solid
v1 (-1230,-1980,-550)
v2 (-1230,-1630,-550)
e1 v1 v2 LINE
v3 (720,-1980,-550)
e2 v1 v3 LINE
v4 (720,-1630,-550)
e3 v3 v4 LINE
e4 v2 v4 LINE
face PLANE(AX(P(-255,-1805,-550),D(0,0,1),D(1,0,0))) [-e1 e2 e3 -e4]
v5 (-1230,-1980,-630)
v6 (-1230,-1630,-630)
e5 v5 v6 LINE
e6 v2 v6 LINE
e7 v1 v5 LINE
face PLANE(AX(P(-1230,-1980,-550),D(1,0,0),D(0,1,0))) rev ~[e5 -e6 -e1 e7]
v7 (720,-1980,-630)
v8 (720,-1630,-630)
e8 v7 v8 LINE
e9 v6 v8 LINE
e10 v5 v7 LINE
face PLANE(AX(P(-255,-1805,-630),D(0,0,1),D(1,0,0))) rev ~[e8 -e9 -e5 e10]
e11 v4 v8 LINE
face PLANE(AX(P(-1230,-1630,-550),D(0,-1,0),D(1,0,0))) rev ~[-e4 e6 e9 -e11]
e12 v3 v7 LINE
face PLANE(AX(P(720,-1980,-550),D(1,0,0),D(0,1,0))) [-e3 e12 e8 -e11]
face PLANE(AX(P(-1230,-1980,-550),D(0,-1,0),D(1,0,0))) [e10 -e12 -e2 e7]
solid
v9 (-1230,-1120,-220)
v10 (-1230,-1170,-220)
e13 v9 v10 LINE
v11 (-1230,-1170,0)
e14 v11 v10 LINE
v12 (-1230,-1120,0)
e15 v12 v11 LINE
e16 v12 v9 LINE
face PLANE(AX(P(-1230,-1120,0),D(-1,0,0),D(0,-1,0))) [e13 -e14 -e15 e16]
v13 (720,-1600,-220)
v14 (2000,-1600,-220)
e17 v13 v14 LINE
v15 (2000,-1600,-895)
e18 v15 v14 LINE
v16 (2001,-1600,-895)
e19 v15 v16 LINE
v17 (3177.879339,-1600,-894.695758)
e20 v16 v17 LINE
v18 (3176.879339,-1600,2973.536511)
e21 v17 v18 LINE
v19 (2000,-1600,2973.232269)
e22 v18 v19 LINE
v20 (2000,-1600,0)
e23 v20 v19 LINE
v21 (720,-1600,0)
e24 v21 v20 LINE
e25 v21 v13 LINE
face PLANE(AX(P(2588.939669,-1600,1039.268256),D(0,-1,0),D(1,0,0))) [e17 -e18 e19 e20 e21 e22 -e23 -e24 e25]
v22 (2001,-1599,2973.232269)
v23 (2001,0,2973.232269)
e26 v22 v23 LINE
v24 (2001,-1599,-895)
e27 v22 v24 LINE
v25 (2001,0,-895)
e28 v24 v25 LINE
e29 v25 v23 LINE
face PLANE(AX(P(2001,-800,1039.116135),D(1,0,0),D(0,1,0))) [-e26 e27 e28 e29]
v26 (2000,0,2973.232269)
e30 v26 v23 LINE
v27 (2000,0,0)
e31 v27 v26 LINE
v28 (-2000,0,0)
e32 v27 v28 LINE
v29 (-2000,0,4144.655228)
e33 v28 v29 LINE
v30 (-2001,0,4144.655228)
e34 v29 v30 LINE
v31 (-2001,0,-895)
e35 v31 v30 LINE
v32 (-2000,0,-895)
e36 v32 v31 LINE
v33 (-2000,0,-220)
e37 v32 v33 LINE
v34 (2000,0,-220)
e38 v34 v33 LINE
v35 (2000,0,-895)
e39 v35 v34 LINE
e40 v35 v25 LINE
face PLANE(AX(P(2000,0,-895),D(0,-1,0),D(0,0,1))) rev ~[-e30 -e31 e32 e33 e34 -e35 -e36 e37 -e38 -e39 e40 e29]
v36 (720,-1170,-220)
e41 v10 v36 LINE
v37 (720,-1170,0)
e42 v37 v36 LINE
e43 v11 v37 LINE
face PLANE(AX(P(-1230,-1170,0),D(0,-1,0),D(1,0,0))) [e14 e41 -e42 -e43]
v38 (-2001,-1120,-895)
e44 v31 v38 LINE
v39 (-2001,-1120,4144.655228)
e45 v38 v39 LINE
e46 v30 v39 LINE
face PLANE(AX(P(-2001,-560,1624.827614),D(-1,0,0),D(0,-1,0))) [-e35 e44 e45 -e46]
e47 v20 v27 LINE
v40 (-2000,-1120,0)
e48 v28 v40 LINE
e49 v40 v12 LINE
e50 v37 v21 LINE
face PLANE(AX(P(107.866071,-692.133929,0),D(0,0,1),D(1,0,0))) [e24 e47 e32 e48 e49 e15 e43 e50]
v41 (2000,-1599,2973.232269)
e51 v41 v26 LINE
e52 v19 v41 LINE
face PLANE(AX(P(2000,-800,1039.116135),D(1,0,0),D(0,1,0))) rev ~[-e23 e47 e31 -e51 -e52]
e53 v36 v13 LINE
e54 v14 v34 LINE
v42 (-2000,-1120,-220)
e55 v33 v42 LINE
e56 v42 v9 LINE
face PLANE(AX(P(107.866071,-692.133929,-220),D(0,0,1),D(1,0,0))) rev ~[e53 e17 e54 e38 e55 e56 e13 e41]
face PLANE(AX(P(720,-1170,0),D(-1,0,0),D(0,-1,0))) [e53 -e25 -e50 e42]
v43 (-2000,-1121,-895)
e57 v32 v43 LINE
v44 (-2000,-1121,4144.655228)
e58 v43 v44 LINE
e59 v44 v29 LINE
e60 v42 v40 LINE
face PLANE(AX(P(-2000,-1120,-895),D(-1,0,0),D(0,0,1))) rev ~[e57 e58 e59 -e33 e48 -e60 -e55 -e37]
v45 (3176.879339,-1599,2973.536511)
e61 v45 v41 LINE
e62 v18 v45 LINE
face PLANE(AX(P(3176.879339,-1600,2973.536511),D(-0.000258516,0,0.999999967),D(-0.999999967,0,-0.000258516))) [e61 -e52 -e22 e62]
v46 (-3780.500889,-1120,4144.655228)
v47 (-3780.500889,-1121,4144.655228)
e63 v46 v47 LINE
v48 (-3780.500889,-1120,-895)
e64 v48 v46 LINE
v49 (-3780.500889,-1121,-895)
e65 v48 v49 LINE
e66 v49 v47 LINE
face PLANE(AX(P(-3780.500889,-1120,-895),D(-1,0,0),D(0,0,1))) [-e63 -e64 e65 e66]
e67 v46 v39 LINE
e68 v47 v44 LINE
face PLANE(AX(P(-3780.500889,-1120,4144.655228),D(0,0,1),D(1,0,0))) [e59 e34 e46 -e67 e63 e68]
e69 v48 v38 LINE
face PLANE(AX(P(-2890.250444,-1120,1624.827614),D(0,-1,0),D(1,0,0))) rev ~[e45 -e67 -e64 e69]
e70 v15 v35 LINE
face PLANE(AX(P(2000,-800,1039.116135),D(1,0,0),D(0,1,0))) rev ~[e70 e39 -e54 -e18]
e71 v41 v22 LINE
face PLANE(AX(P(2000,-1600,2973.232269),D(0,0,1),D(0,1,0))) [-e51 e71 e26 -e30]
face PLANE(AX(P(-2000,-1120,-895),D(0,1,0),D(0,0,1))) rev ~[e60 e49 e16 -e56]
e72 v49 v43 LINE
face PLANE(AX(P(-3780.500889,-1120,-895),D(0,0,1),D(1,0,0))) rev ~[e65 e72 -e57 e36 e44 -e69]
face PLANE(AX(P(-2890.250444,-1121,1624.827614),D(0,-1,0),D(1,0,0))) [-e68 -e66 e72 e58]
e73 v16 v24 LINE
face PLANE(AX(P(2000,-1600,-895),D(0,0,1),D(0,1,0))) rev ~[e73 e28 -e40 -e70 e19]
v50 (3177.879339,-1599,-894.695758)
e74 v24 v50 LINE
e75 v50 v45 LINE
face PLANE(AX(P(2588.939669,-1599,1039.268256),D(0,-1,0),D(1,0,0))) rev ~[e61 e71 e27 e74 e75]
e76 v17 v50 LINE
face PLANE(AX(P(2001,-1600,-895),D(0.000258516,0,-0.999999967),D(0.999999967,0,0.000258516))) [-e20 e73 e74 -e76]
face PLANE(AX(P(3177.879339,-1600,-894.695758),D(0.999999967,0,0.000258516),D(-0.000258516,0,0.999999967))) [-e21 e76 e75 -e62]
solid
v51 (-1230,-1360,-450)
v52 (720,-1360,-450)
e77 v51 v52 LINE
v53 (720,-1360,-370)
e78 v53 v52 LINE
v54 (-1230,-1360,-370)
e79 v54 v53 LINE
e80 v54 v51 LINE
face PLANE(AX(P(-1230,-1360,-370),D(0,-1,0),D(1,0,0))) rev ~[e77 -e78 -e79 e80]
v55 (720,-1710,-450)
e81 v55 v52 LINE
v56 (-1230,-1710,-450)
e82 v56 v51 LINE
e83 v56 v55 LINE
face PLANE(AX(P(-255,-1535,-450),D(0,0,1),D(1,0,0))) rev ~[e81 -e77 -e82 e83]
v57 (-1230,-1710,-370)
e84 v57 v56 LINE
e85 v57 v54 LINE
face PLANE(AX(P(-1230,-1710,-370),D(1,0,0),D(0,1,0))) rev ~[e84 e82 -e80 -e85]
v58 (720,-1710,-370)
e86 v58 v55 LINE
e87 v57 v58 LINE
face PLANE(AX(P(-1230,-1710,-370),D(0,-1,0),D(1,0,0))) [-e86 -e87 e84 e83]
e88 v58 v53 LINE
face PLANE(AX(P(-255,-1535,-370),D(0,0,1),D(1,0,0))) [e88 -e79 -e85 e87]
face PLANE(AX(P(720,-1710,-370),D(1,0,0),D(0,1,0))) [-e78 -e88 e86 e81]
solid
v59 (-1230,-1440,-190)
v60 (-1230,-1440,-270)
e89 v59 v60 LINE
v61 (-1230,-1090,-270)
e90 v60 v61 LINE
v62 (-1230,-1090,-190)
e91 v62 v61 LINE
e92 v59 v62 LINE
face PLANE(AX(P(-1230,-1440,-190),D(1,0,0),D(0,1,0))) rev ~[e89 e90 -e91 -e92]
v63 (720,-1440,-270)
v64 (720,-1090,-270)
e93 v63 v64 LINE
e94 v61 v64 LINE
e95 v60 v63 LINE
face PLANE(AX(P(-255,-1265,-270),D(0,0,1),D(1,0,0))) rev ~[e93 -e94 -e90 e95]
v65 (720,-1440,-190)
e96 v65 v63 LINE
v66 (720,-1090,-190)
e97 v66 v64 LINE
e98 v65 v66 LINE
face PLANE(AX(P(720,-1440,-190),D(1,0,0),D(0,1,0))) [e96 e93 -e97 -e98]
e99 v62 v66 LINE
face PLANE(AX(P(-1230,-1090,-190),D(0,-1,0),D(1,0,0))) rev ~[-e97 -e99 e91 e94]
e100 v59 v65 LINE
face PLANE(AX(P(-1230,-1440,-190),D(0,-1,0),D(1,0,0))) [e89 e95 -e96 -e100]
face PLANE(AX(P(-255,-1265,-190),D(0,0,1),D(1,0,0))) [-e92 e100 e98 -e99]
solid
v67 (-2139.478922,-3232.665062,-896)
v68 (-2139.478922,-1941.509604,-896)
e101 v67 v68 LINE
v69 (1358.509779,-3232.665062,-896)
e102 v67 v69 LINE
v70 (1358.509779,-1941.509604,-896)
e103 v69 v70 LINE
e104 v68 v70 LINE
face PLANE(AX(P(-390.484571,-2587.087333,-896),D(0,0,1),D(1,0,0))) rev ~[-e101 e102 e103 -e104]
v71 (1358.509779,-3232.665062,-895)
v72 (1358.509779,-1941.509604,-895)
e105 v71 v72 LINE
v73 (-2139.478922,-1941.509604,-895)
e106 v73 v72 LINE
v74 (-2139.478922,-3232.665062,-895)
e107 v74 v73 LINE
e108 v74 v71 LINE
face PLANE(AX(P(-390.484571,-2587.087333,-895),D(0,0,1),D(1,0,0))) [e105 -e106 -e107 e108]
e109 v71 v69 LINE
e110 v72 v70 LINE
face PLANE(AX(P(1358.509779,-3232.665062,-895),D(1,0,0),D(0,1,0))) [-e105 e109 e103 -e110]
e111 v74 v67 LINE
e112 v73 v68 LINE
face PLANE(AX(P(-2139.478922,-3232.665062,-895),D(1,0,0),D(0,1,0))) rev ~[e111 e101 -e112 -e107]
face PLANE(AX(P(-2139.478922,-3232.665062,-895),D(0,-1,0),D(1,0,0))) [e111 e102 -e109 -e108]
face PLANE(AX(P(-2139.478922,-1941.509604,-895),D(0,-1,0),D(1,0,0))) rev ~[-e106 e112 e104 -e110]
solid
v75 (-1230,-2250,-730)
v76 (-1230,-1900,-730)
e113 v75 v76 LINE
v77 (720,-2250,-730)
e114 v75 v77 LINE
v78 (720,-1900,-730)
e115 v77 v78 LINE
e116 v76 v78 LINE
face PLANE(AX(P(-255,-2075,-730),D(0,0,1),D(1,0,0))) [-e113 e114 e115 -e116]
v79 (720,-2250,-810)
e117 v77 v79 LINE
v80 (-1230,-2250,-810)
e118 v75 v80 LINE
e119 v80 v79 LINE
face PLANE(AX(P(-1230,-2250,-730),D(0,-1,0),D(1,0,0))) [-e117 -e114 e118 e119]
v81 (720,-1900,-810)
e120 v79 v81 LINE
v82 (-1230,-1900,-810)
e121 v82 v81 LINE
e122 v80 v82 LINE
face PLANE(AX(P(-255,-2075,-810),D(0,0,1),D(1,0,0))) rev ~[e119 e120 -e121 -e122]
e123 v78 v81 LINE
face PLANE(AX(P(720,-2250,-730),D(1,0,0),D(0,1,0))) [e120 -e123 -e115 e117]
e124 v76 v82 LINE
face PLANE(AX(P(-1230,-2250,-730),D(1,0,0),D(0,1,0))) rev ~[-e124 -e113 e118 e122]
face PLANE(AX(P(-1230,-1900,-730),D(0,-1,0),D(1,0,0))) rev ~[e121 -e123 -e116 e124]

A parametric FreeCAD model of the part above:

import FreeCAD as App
import Part
import Sketcher
from FreeCAD import Vector


def add_polygon(sketch, points):
    """Adds a closed chain of lines whose ends are joined by coincident constraints."""
    first, n = sketch.GeometryCount, len(points)
    for a, b in zip(points, points[1:] + points[:1]):
        sketch.addGeometry(Part.LineSegment(App.Vector(*a, 0), App.Vector(*b, 0)), False)
    for i in range(n):
        sketch.addConstraint(Sketcher.Constraint("Coincident", first + i, 2, first + (i + 1) % n, 1))

doc = App.newDocument("Part")
body = doc.addObject("PartDesign::Body", "Body")

# Sketch on XY plane
sketch1 = body.newObject("Sketcher::SketchObject", "Sketch")
sketch1.AttachmentSupport = (doc.getObject("XY_Plane"), [""])
sketch1.MapMode = "FlatFace"
add_polygon(sketch1, [(2000, 0), (-2000, 0), (-2000, -1120), (-1230, -1120), (-1230, -1170), (720, -1170), (720, -1600), (2000, -1600)])  # lines 0-7
sketch1.addConstraint([
    Sketcher.Constraint("Horizontal", 0),
    Sketcher.Constraint("Vertical", 1),
    Sketcher.Constraint("Horizontal", 2),
    Sketcher.Constraint("Vertical", 3),
    Sketcher.Constraint("Horizontal", 4),
    Sketcher.Constraint("Vertical", 5),
    Sketcher.Constraint("Horizontal", 6),
    Sketcher.Constraint("Vertical", 7),
    Sketcher.Constraint("Symmetric", 0, 2, 7, 2, -1, 1),
    Sketcher.Constraint("DistanceX", 0, 2, 0, 1, 4000.0),
    Sketcher.Constraint("DistanceX", 2, 1, 2, 2, 770.0),
    Sketcher.Constraint("DistanceX", 4, 1, 4, 2, 1950.0),
    Sketcher.Constraint("DistanceY", 1, 2, 1, 1, 1120.0),
    Sketcher.Constraint("DistanceY", 3, 2, 3, 1, 50.0),
    Sketcher.Constraint("DistanceY", 5, 2, 5, 1, 430.0),
])
pad1 = body.newObject("PartDesign::Pad", "Pad")
pad1.Profile = sketch1
pad1.Length = 220
pad1.Reversed = True

# Sketch on YZ plane
sketch2 = body.newObject("Sketcher::SketchObject", "Sketch001")
sketch2.AttachmentSupport = (doc.getObject("YZ_Plane"), [""])
sketch2.MapMode = "FlatFace"
sketch2.AttachmentOffset = App.Placement(Vector(0, 0, -2000), App.Rotation())
add_polygon(sketch2, [(0, 4144.655228), (0, -895), (-1120, -895), (-1120, 4144.655228)])  # lines 0-3
sketch2.addConstraint([
    Sketcher.Constraint("Vertical", 0),
    Sketcher.Constraint("Horizontal", 1),
    Sketcher.Constraint("Vertical", 2),
    Sketcher.Constraint("Horizontal", 3),
    Sketcher.Constraint("PointOnObject", 0, 2, -2),
    Sketcher.Constraint("DistanceX", 1, 2, 1, 1, 1120.0),
    Sketcher.Constraint("DistanceY", 0, 2, -1, 1, 895.0),
    Sketcher.Constraint("DistanceY", 0, 2, 0, 1, 5039.655228),
])
pad2 = body.newObject("PartDesign::Pad", "Pad001")
pad2.Profile = sketch2
pad2.Length = 1
pad2.Reversed = True

# Sketch on XZ plane
sketch3 = body.newObject("Sketcher::SketchObject", "Sketch002")
sketch3.AttachmentSupport = (doc.getObject("XZ_Plane"), [""])
sketch3.MapMode = "FlatFace"
sketch3.AttachmentOffset = App.Placement(Vector(0, 0, 1120), App.Rotation())
add_polygon(sketch3, [(-3780.500889, 4144.655228), (-3780.500889, -895), (-2000, -895), (-2000, 4144.655228)])  # lines 0-3
sketch3.addConstraint([
    Sketcher.Constraint("Vertical", 0),
    Sketcher.Constraint("Horizontal", 1),
    Sketcher.Constraint("Vertical", 2),
    Sketcher.Constraint("Horizontal", 3),
    Sketcher.Constraint("DistanceY", 0, 2, -1, 1, 895.0),
    Sketcher.Constraint("DistanceX", 1, 2, -1, 1, 2000.0),
    Sketcher.Constraint("DistanceX", 1, 1, 1, 2, 1780.500889),
    Sketcher.Constraint("DistanceY", 0, 2, 0, 1, 5039.655228),
])
pad3 = body.newObject("PartDesign::Pad", "Pad002")
pad3.Profile = sketch3
pad3.Length = 1

# Sketch on YZ plane
sketch4 = body.newObject("Sketcher::SketchObject", "Sketch003")
sketch4.AttachmentSupport = (doc.getObject("YZ_Plane"), [""])
sketch4.MapMode = "FlatFace"
sketch4.AttachmentOffset = App.Placement(Vector(0, 0, 2000), App.Rotation())
add_polygon(sketch4, [(-1600, 2973.232269), (-1600, -895), (0, -895), (0, 2973.232269)])  # lines 0-3
sketch4.addConstraint([
    Sketcher.Constraint("Vertical", 0),
    Sketcher.Constraint("Horizontal", 1),
    Sketcher.Constraint("Vertical", 2),
    Sketcher.Constraint("Horizontal", 3),
    Sketcher.Constraint("PointOnObject", 1, 2, -2),
    Sketcher.Constraint("DistanceX", 1, 1, 1, 2, 1600.0),
    Sketcher.Constraint("DistanceY", 0, 2, -1, 1, 895.0),
    Sketcher.Constraint("DistanceY", 0, 2, 0, 1, 3868.232269),
])
pad4 = body.newObject("PartDesign::Pad", "Pad003")
pad4.Profile = sketch4
pad4.Length = 1

# Sketch on XZ plane
sketch5 = body.newObject("Sketcher::SketchObject", "Sketch004")
sketch5.AttachmentSupport = (doc.getObject("XZ_Plane"), [""])
sketch5.MapMode = "FlatFace"
sketch5.AttachmentOffset = App.Placement(Vector(0, 0, 1600), App.Rotation())
add_polygon(sketch5, [(3176.879339, 2973.536511), (2000, 2973.232269), (2001, -895), (3177.879339, -894.695758)])  # lines 0-3
sketch5.addConstraint([
    Sketcher.Constraint("Perpendicular", 0, 1),
    Sketcher.Constraint("Perpendicular", 1, 2),
    Sketcher.Constraint("Perpendicular", 2, 3),
    Sketcher.Constraint("DistanceX", -1, 1, 0, 2, 2000.0),
    Sketcher.Constraint("DistanceX", -1, 1, 1, 2, 2001.0),
    Sketcher.Constraint("DistanceY", 1, 2, -1, 1, 895.0),
    Sketcher.Constraint("Distance", 1, 3868.232399),
    Sketcher.Constraint("Distance", 0, 1176.879378),
])
pad5 = body.newObject("PartDesign::Pad", "Pad004")
pad5.Profile = sketch5
pad5.Length = 1
pad5.Reversed = True
body2 = doc.addObject("PartDesign::Body", "Body001")

# Sketch on XY plane
sketch6 = body2.newObject("Sketcher::SketchObject", "Sketch005")
sketch6.AttachmentSupport = (doc.getObject("XY_Plane001"), [""])
sketch6.MapMode = "FlatFace"
sketch6.AttachmentOffset = App.Placement(Vector(0, 0, -190), App.Rotation())
add_polygon(sketch6, [(-1230, -1090), (-1230, -1440), (720, -1440), (720, -1090)])  # lines 0-3
sketch6.addConstraint([
    Sketcher.Constraint("Vertical", 0),
    Sketcher.Constraint("Horizontal", 1),
    Sketcher.Constraint("Vertical", 2),
    Sketcher.Constraint("Horizontal", 3),
    Sketcher.Constraint("DistanceX", 1, 1, 1, 2, 1950.0),
    Sketcher.Constraint("DistanceY", 0, 2, 0, 1, 350.0),
    Sketcher.Constraint("DistanceX", 0, 2, -1, 1, 1230.0),
    Sketcher.Constraint("DistanceY", 0, 2, -1, 1, 1440.0),
])
pad6 = body2.newObject("PartDesign::Pad", "Pad005")
pad6.Profile = sketch6
pad6.Length = 80
pad6.Reversed = True
body3 = doc.addObject("PartDesign::Body", "Body002")

# Sketch on XY plane
sketch7 = body3.newObject("Sketcher::SketchObject", "Sketch006")
sketch7.AttachmentSupport = (doc.getObject("XY_Plane002"), [""])
sketch7.MapMode = "FlatFace"
sketch7.AttachmentOffset = App.Placement(Vector(0, 0, -370), App.Rotation())
add_polygon(sketch7, [(-1230, -1360), (-1230, -1710), (720, -1710), (720, -1360)])  # lines 0-3
sketch7.addConstraint([
    Sketcher.Constraint("Vertical", 0),
    Sketcher.Constraint("Horizontal", 1),
    Sketcher.Constraint("Vertical", 2),
    Sketcher.Constraint("Horizontal", 3),
    Sketcher.Constraint("DistanceX", 1, 1, 1, 2, 1950.0),
    Sketcher.Constraint("DistanceY", 0, 2, 0, 1, 350.0),
    Sketcher.Constraint("DistanceX", 0, 2, -1, 1, 1230.0),
    Sketcher.Constraint("DistanceY", 0, 2, -1, 1, 1710.0),
])
pad7 = body3.newObject("PartDesign::Pad", "Pad006")
pad7.Profile = sketch7
pad7.Length = 80
pad7.Reversed = True
body4 = doc.addObject("PartDesign::Body", "Body003")

# Sketch on XY plane
sketch8 = body4.newObject("Sketcher::SketchObject", "Sketch007")
sketch8.AttachmentSupport = (doc.getObject("XY_Plane003"), [""])
sketch8.MapMode = "FlatFace"
sketch8.AttachmentOffset = App.Placement(Vector(0, 0, -550), App.Rotation())
add_polygon(sketch8, [(-1230, -1630), (-1230, -1980), (720, -1980), (720, -1630)])  # lines 0-3
sketch8.addConstraint([
    Sketcher.Constraint("Vertical", 0),
    Sketcher.Constraint("Horizontal", 1),
    Sketcher.Constraint("Vertical", 2),
    Sketcher.Constraint("Horizontal", 3),
    Sketcher.Constraint("DistanceX", 1, 1, 1, 2, 1950.0),
    Sketcher.Constraint("DistanceY", 0, 2, 0, 1, 350.0),
    Sketcher.Constraint("DistanceX", 0, 2, -1, 1, 1230.0),
    Sketcher.Constraint("DistanceY", 0, 2, -1, 1, 1980.0),
])
pad8 = body4.newObject("PartDesign::Pad", "Pad007")
pad8.Profile = sketch8
pad8.Length = 80
pad8.Reversed = True
body5 = doc.addObject("PartDesign::Body", "Body004")

# Sketch on XY plane
sketch9 = body5.newObject("Sketcher::SketchObject", "Sketch008")
sketch9.AttachmentSupport = (doc.getObject("XY_Plane004"), [""])
sketch9.MapMode = "FlatFace"
sketch9.AttachmentOffset = App.Placement(Vector(0, 0, -730), App.Rotation())
add_polygon(sketch9, [(-1230, -1900), (-1230, -2250), (720, -2250), (720, -1900)])  # lines 0-3
sketch9.addConstraint([
    Sketcher.Constraint("Vertical", 0),
    Sketcher.Constraint("Horizontal", 1),
    Sketcher.Constraint("Vertical", 2),
    Sketcher.Constraint("Horizontal", 3),
    Sketcher.Constraint("DistanceX", 1, 1, 1, 2, 1950.0),
    Sketcher.Constraint("DistanceY", 0, 2, 0, 1, 350.0),
    Sketcher.Constraint("DistanceX", 0, 2, -1, 1, 1230.0),
    Sketcher.Constraint("DistanceY", 0, 2, -1, 1, 2250.0),
])
pad9 = body5.newObject("PartDesign::Pad", "Pad008")
pad9.Profile = sketch9
pad9.Length = 80
pad9.Reversed = True
body6 = doc.addObject("PartDesign::Body", "Body005")

# Sketch on XY plane
sketch10 = body6.newObject("Sketcher::SketchObject", "Sketch009")
sketch10.AttachmentSupport = (doc.getObject("XY_Plane005"), [""])
sketch10.MapMode = "FlatFace"
sketch10.AttachmentOffset = App.Placement(Vector(0, 0, -895), App.Rotation())
add_polygon(sketch10, [(-2139.478922, -1941.509604), (-2139.478922, -3232.665062), (1358.509779, -3232.665062), (1358.509779, -1941.509604)])  # lines 0-3
sketch10.addConstraint([
    Sketcher.Constraint("Vertical", 0),
    Sketcher.Constraint("Horizontal", 1),
    Sketcher.Constraint("Vertical", 2),
    Sketcher.Constraint("Horizontal", 3),
    Sketcher.Constraint("DistanceX", 1, 1, 1, 2, 3497.988701),
    Sketcher.Constraint("DistanceY", 0, 2, 0, 1, 1291.155457),
    Sketcher.Constraint("DistanceX", 0, 2, -1, 1, 2139.478922),
    Sketcher.Constraint("DistanceY", 0, 2, -1, 1, 3232.665062),
])
pad10 = body6.newObject("PartDesign::Pad", "Pad009")
pad10.Profile = sketch10
pad10.Length = 1
pad10.Reversed = True

doc.recompute()
